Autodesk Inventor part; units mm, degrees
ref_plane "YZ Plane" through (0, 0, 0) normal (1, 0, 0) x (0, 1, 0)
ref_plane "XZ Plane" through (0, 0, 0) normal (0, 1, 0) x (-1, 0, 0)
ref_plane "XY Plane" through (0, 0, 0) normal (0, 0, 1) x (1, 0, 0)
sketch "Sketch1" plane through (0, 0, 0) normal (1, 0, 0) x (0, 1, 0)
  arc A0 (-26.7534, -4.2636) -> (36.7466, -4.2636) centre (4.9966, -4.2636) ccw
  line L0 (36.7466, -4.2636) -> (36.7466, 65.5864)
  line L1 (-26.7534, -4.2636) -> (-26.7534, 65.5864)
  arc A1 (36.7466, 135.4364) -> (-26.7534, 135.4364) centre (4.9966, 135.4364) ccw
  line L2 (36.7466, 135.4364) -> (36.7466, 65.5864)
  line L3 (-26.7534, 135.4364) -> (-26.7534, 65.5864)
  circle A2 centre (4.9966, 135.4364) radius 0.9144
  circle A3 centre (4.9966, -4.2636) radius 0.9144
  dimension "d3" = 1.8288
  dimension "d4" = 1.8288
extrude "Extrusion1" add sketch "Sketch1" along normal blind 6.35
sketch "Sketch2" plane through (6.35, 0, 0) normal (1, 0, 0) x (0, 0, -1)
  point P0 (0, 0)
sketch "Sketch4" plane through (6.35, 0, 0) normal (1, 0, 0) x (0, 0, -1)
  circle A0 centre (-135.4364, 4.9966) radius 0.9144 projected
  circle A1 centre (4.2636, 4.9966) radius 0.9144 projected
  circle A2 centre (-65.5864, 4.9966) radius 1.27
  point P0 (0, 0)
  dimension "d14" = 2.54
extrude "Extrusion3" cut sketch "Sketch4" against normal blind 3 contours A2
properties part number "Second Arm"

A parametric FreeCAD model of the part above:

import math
import FreeCAD as App
import Part
import Sketcher
from FreeCAD import Vector
Q = App.Units.Quantity

doc = App.newDocument("Part")
params = doc.addObject("Spreadsheet::Sheet", "Params")
for row, (alias, value) in enumerate([
    ("sketch1_diameter", "0.072 in"),
    ("sketch1_radius", "1.25 in"),
    ("sketch1_height", "5.5 in"),
    ("pad1_length", "0.25 in"),
    ("sketch2_diameter", "0.1 in"),
    ("pocket1_length", "0.1181102 in"),
], start=1):
    params.set(f"A{row}", alias)
    params.set(f"B{row}", "=" + value)
    params.setAlias(f"B{row}", alias)

body = doc.addObject("PartDesign::Body", "Body")

# Sketch on YZ plane
sketch1 = body.newObject("Sketcher::SketchObject", "Sketch")
sketch1.AttachmentSupport = (doc.getObject("YZ_Plane"), [""])
sketch1.MapMode = "FlatFace"
sketch1.addGeometry(Part.LineSegment(Vector(-26.7534, 135.4364, 0), Vector(-26.7534, -4.2636, 0)), False)
sketch1.addGeometry(Part.ArcOfCircle(Part.Circle(Vector(4.9966, -4.2636, 0), Vector(0, 0, 1), 31.75), math.radians(180), math.radians(360)), False)
sketch1.addGeometry(Part.LineSegment(Vector(36.7466, -4.2636, 0), Vector(36.7466, 135.4364, 0)), False)
sketch1.addGeometry(Part.ArcOfCircle(Part.Circle(Vector(4.9966, 135.4364, 0), Vector(0, 0, 1), 31.75), math.radians(0), math.radians(180)), False)
sketch1.addGeometry(Part.Circle(Vector(4.9966, -4.2636, 0), Vector(0, 0, 1), 0.9144), False)
sketch1.addGeometry(Part.Circle(Vector(4.9966, 135.4364, 0), Vector(0, 0, 1), 0.9144), False)
sketch1.addConstraint(Sketcher.Constraint("Tangent", 0, 2, 1, 1))
sketch1.addConstraint(Sketcher.Constraint("Tangent", 1, 2, 2, 1))
sketch1.addConstraint(Sketcher.Constraint("Tangent", 2, 2, 3, 1))
sketch1.addConstraint(Sketcher.Constraint("Tangent", 3, 2, 0, 1))
sketch1.addConstraint(Sketcher.Constraint("Vertical", 0))
sketch1.addConstraint(Sketcher.Constraint("Vertical", 2))
sketch1.addConstraint(Sketcher.Constraint("Coincident", 4, 3, 1, 3))
sketch1.addConstraint(Sketcher.Constraint("Coincident", 5, 3, 3, 3))
sketch1.addConstraint(Sketcher.Constraint("Equal", 4, 5))
sketch1.addConstraint(Sketcher.Constraint("Diameter", 4, Q("0.072 in")))
sketch1.addConstraint(Sketcher.Constraint("Radius", 1, Q("1.25 in")))
sketch1.addConstraint(Sketcher.Constraint("DistanceY", 0, 2, 0, 1, Q("5.5 in")))
sketch1.addConstraint(Sketcher.Constraint("DistanceX", -1, 1, 1, 3, Q("4.9966 mm")))
sketch1.addConstraint(Sketcher.Constraint("DistanceY", 1, 3, -1, 1, Q("4.2636 mm")))
sketch1.setExpression("Constraints[9]", "Params.sketch1_diameter")
sketch1.setExpression("Constraints[10]", "Params.sketch1_radius")
sketch1.setExpression("Constraints[11]", "Params.sketch1_height")
pad1 = body.newObject("PartDesign::Pad", "Pad")
pad1.Profile = sketch1
pad1.setExpression("Length", "Params.pad1_length")

# Sketch on YZ plane
sketch2 = body.newObject("Sketcher::SketchObject", "Sketch001")
sketch2.AttachmentSupport = (doc.getObject("YZ_Plane"), [""])
sketch2.MapMode = "FlatFace"
sketch2.AttachmentOffset = App.Placement(Vector(0, 0, 0.25 * 25.4), App.Rotation())
sketch2.addGeometry(Part.Circle(Vector(4.9966, 65.5864, 0), Vector(0, 0, 1), 1.27), False)
sketch2.addConstraint(Sketcher.Constraint("Diameter", 0, Q("0.1 in")))
sketch2.addConstraint(Sketcher.Constraint("DistanceX", -1, 1, 0, 3, Q("4.9966 mm")))
sketch2.addConstraint(Sketcher.Constraint("DistanceY", -1, 1, 0, 3, Q("65.5864 mm")))
sketch2.setExpression("Constraints[0]", "Params.sketch2_diameter")
pocket1 = body.newObject("PartDesign::Pocket", "Pocket")
pocket1.Profile = sketch2
pocket1.setExpression("Length", "Params.pocket1_length")

doc.recompute()
